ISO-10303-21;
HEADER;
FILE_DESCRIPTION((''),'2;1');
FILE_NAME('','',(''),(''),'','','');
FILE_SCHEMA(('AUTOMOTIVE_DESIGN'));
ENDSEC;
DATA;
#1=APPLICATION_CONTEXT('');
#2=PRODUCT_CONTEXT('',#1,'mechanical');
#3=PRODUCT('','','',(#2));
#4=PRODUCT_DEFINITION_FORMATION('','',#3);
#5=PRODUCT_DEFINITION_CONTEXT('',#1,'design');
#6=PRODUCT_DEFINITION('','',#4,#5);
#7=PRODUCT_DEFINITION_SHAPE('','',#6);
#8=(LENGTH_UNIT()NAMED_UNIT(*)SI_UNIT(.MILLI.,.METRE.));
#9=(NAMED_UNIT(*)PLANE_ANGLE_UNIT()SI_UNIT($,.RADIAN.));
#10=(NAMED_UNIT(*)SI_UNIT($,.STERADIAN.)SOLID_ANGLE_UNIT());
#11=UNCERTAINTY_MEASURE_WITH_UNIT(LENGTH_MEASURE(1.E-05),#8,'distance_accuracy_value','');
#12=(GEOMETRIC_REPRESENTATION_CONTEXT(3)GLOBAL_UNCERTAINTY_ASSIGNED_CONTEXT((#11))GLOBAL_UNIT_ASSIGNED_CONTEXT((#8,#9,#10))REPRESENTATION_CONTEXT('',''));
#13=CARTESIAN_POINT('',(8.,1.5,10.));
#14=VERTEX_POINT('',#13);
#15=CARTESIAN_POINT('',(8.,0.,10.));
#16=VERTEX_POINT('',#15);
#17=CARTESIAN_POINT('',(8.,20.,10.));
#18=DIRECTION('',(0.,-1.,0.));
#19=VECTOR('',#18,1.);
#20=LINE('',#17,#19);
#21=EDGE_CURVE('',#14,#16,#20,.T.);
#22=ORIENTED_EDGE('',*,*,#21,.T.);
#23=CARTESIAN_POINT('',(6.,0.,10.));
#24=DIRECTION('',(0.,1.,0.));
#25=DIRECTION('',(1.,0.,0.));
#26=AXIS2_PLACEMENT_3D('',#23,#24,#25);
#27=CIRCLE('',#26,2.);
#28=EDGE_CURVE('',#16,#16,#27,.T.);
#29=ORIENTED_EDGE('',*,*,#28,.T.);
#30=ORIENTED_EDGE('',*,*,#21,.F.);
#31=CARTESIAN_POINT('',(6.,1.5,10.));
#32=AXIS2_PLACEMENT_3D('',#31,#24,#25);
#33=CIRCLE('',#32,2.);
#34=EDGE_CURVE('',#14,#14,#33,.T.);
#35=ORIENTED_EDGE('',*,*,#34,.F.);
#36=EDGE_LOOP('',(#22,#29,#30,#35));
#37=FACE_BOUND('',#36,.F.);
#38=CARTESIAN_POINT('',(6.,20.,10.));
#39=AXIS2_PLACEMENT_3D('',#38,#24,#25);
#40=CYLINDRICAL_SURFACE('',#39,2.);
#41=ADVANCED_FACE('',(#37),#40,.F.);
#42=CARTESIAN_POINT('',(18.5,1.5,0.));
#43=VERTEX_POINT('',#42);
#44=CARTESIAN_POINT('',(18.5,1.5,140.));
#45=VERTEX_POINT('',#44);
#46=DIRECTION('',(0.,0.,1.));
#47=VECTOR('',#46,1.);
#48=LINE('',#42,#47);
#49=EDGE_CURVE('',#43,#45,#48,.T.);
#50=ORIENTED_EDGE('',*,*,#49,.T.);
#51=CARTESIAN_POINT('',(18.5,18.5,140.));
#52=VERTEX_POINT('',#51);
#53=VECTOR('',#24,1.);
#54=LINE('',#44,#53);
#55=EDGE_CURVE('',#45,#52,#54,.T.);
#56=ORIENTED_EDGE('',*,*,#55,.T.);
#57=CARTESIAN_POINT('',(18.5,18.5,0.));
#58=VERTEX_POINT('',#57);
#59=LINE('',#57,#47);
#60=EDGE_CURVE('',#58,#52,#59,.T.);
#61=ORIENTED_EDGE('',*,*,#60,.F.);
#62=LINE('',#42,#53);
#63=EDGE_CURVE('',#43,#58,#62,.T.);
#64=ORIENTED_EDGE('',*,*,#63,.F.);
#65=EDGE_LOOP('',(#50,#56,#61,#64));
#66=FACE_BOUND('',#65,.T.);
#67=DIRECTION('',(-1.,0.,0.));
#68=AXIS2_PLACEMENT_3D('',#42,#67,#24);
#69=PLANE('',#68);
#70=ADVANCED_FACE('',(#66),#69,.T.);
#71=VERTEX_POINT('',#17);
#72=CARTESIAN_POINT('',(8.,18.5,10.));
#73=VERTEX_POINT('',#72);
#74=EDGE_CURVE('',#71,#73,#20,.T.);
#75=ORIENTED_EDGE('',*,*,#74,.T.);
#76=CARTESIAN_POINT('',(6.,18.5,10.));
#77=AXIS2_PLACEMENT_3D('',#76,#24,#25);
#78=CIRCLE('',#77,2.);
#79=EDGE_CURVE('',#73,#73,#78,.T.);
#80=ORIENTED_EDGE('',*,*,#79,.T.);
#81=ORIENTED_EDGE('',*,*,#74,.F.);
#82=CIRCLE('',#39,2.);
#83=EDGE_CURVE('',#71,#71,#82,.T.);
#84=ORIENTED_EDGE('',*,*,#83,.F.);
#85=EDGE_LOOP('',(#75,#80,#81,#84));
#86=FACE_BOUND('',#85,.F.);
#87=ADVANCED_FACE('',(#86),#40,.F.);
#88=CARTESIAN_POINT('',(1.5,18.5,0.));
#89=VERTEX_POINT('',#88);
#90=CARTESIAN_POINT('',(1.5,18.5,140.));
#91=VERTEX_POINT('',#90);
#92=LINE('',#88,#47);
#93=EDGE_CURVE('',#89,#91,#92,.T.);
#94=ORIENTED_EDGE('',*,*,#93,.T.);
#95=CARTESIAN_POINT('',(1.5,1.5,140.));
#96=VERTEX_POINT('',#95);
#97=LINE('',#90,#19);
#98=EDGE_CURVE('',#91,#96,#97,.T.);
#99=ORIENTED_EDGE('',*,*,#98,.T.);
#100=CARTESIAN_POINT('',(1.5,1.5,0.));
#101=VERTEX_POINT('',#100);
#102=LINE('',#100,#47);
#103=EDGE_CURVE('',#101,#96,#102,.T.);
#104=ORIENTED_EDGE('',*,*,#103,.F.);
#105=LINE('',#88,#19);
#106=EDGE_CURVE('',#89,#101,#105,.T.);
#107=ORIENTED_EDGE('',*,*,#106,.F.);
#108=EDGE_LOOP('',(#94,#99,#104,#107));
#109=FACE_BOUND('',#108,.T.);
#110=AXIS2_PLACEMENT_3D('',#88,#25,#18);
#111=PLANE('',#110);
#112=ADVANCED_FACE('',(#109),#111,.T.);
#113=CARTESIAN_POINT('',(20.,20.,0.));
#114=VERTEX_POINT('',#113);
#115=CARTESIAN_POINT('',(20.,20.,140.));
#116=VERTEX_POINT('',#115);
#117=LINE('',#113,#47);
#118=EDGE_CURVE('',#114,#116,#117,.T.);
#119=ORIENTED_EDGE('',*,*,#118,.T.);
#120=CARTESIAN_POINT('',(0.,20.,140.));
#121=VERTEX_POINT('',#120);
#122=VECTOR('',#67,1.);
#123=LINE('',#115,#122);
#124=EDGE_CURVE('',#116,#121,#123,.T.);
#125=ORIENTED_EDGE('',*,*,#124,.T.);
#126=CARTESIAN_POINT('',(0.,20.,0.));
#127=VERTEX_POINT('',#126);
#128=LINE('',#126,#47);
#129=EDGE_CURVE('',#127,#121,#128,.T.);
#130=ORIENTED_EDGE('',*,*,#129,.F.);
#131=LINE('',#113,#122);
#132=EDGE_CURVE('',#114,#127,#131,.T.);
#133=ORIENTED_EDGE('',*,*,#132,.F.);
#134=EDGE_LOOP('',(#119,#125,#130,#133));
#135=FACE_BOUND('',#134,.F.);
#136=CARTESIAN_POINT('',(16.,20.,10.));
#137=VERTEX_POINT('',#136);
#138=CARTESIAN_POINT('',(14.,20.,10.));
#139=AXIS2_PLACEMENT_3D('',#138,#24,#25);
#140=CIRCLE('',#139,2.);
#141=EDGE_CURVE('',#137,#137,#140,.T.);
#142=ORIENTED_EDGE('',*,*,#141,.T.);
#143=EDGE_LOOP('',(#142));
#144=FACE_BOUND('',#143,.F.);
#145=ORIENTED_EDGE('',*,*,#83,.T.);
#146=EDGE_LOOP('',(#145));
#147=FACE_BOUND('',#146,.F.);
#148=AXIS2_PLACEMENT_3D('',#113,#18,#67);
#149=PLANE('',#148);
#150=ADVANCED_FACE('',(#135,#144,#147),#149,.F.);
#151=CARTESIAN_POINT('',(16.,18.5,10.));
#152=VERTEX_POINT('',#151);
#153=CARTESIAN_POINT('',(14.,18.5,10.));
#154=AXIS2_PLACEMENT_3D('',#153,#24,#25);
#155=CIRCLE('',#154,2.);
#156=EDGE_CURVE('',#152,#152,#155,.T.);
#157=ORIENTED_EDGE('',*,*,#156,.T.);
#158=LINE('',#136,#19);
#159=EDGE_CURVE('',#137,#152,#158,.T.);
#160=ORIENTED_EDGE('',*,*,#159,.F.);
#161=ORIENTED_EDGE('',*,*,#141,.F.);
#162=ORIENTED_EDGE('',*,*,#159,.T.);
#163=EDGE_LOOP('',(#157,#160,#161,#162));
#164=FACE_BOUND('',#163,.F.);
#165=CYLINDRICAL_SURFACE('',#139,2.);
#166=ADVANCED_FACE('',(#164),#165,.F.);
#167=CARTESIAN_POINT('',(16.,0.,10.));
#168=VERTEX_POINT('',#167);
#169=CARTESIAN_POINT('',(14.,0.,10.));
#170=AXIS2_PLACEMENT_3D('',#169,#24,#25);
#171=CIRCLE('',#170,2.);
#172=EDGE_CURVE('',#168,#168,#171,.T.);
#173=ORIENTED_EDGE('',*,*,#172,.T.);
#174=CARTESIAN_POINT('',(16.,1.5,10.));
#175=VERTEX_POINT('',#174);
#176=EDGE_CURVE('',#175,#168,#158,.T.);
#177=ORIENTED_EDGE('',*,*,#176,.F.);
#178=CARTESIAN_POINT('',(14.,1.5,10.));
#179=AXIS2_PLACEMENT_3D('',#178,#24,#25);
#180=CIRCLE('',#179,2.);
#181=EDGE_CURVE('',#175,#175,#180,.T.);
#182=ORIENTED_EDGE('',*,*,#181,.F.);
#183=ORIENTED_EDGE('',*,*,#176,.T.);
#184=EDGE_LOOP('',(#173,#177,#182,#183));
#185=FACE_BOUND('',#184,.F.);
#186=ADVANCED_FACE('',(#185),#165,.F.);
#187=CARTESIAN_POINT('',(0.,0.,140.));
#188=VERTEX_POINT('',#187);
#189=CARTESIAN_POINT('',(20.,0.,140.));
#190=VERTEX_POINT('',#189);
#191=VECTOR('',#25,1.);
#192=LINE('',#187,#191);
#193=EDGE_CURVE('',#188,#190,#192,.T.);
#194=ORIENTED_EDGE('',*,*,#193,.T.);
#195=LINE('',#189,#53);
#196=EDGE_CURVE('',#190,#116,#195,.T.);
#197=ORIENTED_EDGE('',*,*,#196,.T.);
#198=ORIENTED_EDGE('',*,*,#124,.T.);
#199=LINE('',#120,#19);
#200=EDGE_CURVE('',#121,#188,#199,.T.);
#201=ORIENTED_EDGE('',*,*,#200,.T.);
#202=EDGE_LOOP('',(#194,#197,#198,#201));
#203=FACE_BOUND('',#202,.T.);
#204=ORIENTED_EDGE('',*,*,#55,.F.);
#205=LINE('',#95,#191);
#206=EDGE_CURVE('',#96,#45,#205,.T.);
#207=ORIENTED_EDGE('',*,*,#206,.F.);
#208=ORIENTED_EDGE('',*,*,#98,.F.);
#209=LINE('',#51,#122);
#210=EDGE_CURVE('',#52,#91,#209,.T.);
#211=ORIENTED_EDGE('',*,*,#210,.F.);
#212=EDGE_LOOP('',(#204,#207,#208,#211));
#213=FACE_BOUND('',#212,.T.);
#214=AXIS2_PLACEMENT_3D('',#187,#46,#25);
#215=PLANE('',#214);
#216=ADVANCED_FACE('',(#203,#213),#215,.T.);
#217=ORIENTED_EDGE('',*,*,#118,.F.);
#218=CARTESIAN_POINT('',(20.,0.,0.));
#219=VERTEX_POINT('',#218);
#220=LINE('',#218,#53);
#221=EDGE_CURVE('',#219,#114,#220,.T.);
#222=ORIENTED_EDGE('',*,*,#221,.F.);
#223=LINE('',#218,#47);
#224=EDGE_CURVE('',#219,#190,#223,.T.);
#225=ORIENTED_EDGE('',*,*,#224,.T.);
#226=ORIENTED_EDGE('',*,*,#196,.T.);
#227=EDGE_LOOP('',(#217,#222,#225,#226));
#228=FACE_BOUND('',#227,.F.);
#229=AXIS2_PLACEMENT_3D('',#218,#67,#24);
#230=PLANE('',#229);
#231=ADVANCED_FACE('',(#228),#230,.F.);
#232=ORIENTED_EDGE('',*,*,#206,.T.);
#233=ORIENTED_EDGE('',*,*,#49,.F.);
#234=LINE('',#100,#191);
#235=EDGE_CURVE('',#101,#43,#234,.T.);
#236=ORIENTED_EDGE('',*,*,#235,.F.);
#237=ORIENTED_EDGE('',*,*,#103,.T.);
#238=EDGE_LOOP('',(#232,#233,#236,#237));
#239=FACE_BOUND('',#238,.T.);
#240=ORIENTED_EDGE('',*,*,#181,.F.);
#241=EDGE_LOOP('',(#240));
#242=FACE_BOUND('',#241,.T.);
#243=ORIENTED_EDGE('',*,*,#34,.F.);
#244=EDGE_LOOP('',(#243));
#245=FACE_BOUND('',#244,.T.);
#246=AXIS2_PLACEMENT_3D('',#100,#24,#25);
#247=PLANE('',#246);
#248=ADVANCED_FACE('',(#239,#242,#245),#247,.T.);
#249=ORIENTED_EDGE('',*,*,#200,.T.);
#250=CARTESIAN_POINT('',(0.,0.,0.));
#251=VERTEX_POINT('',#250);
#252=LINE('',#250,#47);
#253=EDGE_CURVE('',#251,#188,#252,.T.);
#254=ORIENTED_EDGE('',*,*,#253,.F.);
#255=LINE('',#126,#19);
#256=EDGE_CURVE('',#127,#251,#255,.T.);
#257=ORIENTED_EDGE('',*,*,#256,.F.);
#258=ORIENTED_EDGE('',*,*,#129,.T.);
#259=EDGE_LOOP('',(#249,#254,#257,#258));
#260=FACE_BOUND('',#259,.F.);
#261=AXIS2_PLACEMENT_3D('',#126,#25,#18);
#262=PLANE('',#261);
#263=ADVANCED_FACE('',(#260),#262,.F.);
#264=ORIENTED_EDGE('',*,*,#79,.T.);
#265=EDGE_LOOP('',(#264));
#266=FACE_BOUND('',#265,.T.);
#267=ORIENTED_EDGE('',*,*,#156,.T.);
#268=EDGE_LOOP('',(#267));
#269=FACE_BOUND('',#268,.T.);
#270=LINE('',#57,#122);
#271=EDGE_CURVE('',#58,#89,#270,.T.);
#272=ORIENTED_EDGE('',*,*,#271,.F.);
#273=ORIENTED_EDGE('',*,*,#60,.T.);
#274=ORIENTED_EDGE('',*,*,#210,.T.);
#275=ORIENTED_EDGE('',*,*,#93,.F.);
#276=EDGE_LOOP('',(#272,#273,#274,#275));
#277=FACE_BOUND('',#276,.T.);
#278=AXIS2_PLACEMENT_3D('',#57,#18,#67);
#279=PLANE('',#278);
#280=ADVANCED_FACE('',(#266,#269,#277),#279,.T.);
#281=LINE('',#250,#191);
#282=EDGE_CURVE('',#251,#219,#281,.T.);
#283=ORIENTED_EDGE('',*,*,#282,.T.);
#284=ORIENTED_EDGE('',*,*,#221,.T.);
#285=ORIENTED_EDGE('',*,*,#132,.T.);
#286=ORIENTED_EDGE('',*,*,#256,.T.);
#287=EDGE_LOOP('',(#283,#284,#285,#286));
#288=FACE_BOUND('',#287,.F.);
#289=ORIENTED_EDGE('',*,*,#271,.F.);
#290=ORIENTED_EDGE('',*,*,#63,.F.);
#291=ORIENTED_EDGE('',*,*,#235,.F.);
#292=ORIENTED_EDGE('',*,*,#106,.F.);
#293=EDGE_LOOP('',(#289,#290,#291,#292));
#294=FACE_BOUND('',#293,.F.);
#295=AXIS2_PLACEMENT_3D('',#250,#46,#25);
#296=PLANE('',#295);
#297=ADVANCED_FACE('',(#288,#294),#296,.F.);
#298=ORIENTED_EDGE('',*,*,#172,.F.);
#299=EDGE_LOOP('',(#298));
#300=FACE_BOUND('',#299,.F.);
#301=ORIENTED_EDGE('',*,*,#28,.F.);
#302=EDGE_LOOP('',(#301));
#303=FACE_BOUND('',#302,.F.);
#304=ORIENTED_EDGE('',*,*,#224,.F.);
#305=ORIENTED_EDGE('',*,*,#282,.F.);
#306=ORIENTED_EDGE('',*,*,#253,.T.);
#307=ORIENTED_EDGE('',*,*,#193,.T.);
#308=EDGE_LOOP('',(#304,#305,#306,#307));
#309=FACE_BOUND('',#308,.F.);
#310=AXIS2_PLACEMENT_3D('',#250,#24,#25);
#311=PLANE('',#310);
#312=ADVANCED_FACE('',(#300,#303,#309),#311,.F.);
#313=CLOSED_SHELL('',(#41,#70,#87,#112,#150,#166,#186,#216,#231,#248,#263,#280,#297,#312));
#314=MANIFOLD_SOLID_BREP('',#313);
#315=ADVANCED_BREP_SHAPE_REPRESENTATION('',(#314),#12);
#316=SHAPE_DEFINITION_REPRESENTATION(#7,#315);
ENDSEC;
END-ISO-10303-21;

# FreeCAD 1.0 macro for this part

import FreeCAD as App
import Part
import Sketcher
Q = App.Units.Quantity


def add_polygon(sketch, points):
    """Adds a closed chain of lines whose ends are joined by coincident constraints."""
    first, n = sketch.GeometryCount, len(points)
    for a, b in zip(points, points[1:] + points[:1]):
        sketch.addGeometry(Part.LineSegment(App.Vector(*a, 0), App.Vector(*b, 0)), False)
    for i in range(n):
        sketch.addConstraint(Sketcher.Constraint("Coincident", first + i, 2, first + (i + 1) % n, 1))

doc = App.newDocument("Part")
body = doc.addObject("PartDesign::Body", "Body")

# Sketch on XY plane
sketch1 = body.newObject("Sketcher::SketchObject", "Sketch")
sketch1.AttachmentSupport = (doc.getObject("XY_Plane"), [""])
sketch1.MapMode = "FlatFace"
add_polygon(sketch1, [(0, 20), (0, 0), (20, 0), (20, 20)])  # lines 0-3
add_polygon(sketch1, [(18, 2), (2, 2), (2, 18), (18, 18)])  # lines 4-7
sketch1.addConstraint([
    Sketcher.Constraint("Vertical", 0),
    Sketcher.Constraint("Horizontal", 1),
    Sketcher.Constraint("Vertical", 2),
    Sketcher.Constraint("Horizontal", 3),
    Sketcher.Constraint("Horizontal", 4),
    Sketcher.Constraint("Vertical", 5),
    Sketcher.Constraint("Horizontal", 6),
    Sketcher.Constraint("Vertical", 7),
    Sketcher.Constraint("Coincident", 0, 2, -1, 1),
    Sketcher.Constraint("Equal", 3, 0),
    Sketcher.Constraint("Equal", 6, 5),
    Sketcher.Constraint("DistanceX", 1, 1, 1, 2, Q("20 mm")),
    Sketcher.Constraint("DistanceX", -1, 1, 4, 2, Q("1.5 mm")),
    Sketcher.Constraint("DistanceY", -1, 1, 4, 2, Q("1.5 mm")),
    Sketcher.Constraint("DistanceY", 5, 2, 3, 2, Q("1.5 mm")),
])
pad1 = body.newObject("PartDesign::Pad", "Pad")
pad1.Profile = sketch1
pad1.Length = 140

# Sketch on XZ plane
sketch2 = body.newObject("Sketcher::SketchObject", "Sketch001")
sketch2.AttachmentSupport = (doc.getObject("XZ_Plane"), [""])
sketch2.MapMode = "FlatFace"
sketch2.AttachmentOffset = App.Placement(App.Vector(0, 0, -20), App.Rotation())
sketch2.addGeometry([
    Part.Circle(App.Vector(6, 10, 0), App.Vector(0, 0, 1), 2),
    Part.Circle(App.Vector(14, 10, 0), App.Vector(0, 0, 1), 2),
], False)
sketch2.addConstraint([
    Sketcher.Constraint("Equal", 0, 1),
    Sketcher.Constraint("Horizontal", 0, 3, 1, 3),
    Sketcher.Constraint("Diameter", 0, Q("4 mm")),
    Sketcher.Constraint("DistanceY", -1, 1, 0, 3, Q("10 mm")),
    Sketcher.Constraint("DistanceX", 0, 3, 1, 3, Q("8 mm")),
    Sketcher.Constraint("DistanceX", -1, 1, 0, 3, Q("6 mm")),
])
pocket1 = body.newObject("PartDesign::Pocket", "Pocket")
pocket1.Profile = sketch2
pocket1.Type = "ThroughAll"
pocket1.Reversed = True

doc.recompute()
